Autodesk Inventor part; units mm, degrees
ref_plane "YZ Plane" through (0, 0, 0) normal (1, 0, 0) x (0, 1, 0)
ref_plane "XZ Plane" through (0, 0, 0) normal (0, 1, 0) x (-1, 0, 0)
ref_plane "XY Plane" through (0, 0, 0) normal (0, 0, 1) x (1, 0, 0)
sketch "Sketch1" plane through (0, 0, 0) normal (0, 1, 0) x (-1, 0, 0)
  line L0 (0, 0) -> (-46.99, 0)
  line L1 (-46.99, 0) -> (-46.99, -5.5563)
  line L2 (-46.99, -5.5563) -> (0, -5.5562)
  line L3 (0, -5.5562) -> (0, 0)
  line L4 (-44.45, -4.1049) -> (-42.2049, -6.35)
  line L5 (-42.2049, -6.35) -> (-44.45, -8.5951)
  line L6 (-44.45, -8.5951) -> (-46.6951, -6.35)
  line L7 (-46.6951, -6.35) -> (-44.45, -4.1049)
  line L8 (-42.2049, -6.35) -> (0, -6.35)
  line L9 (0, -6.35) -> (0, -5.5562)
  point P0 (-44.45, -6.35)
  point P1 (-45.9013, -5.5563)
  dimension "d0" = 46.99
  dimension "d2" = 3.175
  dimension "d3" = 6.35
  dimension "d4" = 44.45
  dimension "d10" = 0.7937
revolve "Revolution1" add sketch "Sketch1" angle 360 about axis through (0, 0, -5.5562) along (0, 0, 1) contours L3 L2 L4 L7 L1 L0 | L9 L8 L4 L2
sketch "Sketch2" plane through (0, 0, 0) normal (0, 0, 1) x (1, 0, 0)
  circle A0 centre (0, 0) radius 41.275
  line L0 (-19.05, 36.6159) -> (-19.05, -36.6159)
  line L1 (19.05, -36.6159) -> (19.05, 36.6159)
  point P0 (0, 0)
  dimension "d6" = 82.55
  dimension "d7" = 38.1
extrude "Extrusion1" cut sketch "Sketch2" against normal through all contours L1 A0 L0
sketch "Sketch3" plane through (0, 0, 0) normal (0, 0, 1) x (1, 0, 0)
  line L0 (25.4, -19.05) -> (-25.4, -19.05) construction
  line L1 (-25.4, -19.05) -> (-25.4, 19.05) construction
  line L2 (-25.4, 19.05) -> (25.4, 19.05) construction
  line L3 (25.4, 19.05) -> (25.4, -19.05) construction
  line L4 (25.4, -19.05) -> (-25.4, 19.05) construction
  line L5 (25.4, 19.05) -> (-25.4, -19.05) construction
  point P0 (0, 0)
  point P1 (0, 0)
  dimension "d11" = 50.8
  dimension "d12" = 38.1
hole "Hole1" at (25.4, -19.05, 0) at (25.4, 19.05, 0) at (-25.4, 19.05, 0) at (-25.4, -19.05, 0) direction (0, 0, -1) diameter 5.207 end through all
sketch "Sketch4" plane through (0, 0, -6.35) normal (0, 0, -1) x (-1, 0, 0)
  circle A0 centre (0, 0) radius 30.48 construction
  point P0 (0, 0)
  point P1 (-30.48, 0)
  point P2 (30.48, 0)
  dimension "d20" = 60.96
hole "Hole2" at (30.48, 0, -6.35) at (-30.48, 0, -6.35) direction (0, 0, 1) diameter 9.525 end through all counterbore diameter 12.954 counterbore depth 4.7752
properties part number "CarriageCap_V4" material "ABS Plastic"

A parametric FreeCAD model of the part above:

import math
import FreeCAD as App
import Part
import Sketcher

V = App.Vector
Q = App.Units.Quantity

doc = App.newDocument("Part")
params = doc.addObject("Spreadsheet::Sheet", "Params")
for row, (alias, value) in enumerate([
    ("sketch1_width", "1.85 in"),
    ("sketch1_height", "0.25 in"),
    ("sketch1_length", "0.125 in"),
    ("revolution_angle", "360 deg"),
    ("sketch2_radius", "1.625 in"),
    ("sketch3_diameter", "0.205 in"),
    ("hole_diameter", "0.205 in"),
    ("sketch4_diameter", "0.375 in"),
    ("hole2_diameter", "0.375 in"),
    ("hole2_cbore_diameter", "0.51 in"),
    ("hole2_cbore_depth", "0.188 in"),
], start=1):
    params.set(f"A{row}", alias)
    params.set(f"B{row}", "=" + value)
    params.setAlias(f"B{row}", alias)

body = doc.addObject("PartDesign::Body", "Body")

sketch1 = body.newObject("Sketcher::SketchObject", "Sketch")
sketch1.AttachmentSupport = (doc.getObject("XZ_Plane"), [""])
sketch1.MapMode = "FlatFace"
sketch1.addGeometry([
    Part.LineSegment(V(0, 0, 0), V(47, 0, 0)),
    Part.LineSegment(V(47, 0, 0), V(47, -5.6, 0)),
    Part.LineSegment(V(47, -5.6, 0), V(45.9, -5.6, 0)),
    Part.LineSegment(V(45.9, -5.6, 0), V(44.5, -4.1, 0)),
    Part.LineSegment(V(44.5, -4.1, 0), V(42.2, -6.3, 0)),
    Part.LineSegment(V(42.2, -6.3, 0), V(0, -6.3, 0)),
    Part.LineSegment(V(0, -6.3, 0), V(0, 0, 0)),
], False)
sketch1.addConstraint([
    Sketcher.Constraint("Coincident", 0, 2, 1, 1),
    Sketcher.Constraint("Coincident", 1, 2, 2, 1),
    Sketcher.Constraint("Coincident", 2, 2, 3, 1),
    Sketcher.Constraint("Coincident", 3, 2, 4, 1),
    Sketcher.Constraint("Coincident", 4, 2, 5, 1),
    Sketcher.Constraint("Coincident", 5, 2, 6, 1),
    Sketcher.Constraint("Coincident", 6, 2, 0, 1),
    Sketcher.Constraint("Horizontal", 0),
    Sketcher.Constraint("Vertical", 1),
    Sketcher.Constraint("Horizontal", 2),
    Sketcher.Constraint("Horizontal", 5),
    Sketcher.Constraint("Vertical", 6),
    Sketcher.Constraint("Coincident", 6, 2, -1, 1),
    Sketcher.Constraint("Perpendicular", 3, 4),
    Sketcher.Constraint("DistanceX", 0, 1, 0, 2, Q("1.85 in")),
    Sketcher.Constraint("DistanceY", 6, 1, 6, 2, Q("0.25 in")),
    Sketcher.Constraint("DistanceX", -1, 1, 3, 2, Q("1.75 in")),
    Sketcher.Constraint("Distance", 4, Q("0.125 in")),
    Sketcher.Constraint("Angle", 3, Q("135 deg")),
    Sketcher.Constraint("DistanceY", 4, 2, 2, 2, Q("0.031248 in")),
])
sketch1.setExpression("Constraints[14]", "Params.sketch1_width")
sketch1.setExpression("Constraints[15]", "Params.sketch1_height")
sketch1.setExpression("Constraints[17]", "Params.sketch1_length")
revolution = body.newObject("PartDesign::Revolution", "Revolution")
revolution.Profile = sketch1
revolution.ReferenceAxis = (sketch1, ["V_Axis"])
revolution.setExpression("Angle", "Params.revolution_angle")

sketch2 = body.newObject("Sketcher::SketchObject", "Sketch001")
sketch2.AttachmentSupport = (doc.getObject("XY_Plane"), [""])
sketch2.MapMode = "FlatFace"
sketch2.addGeometry([
    Part.LineSegment(V(19, -37, 0), V(19, 37, 0)),
    Part.ArcOfCircle(Part.Circle(V(0, 0, 0), V(0, 0, 1), 41), math.radians(63), math.radians(117)),
    Part.LineSegment(V(-19, 37, 0), V(-19, -37, 0)),
    Part.ArcOfCircle(Part.Circle(V(0, 0, 0), V(0, 0, 1), 41), math.radians(-117), math.radians(-63)),
], False)
sketch2.addConstraint([
    Sketcher.Constraint("Coincident", 0, 2, 1, 1),
    Sketcher.Constraint("Coincident", 1, 2, 2, 1),
    Sketcher.Constraint("Coincident", 2, 2, 3, 1),
    Sketcher.Constraint("Coincident", 3, 2, 0, 1),
    Sketcher.Constraint("Vertical", 0),
    Sketcher.Constraint("Vertical", 2),
    Sketcher.Constraint("Coincident", 1, 3, -1, 1),
    Sketcher.Constraint("Coincident", 3, 3, -1, 1),
    Sketcher.Constraint("Equal", 1, 3),
    Sketcher.Constraint("Horizontal", 0, 2, 1, 2),
    Sketcher.Constraint("Radius", 1, Q("1.625 in")),
    Sketcher.Constraint("DistanceX", 1, 2, 0, 2, Q("1.5 in")),
])
sketch2.setExpression("Constraints[10]", "Params.sketch2_radius")
pocket1 = body.newObject("PartDesign::Pocket", "Pocket")
pocket1.Profile = sketch2
pocket1.Type = "ThroughAll"

sketch3 = body.newObject("Sketcher::SketchObject", "Sketch002")
sketch3.AttachmentSupport = (doc.getObject("XY_Plane"), [""])
sketch3.MapMode = "FlatFace"
sketch3.addGeometry([
    Part.Circle(V(25.4, -19.1, 0), V(0, 0, 1), 2.6),
    Part.Circle(V(25.4, 19.1, 0), V(0, 0, 1), 2.6),
    Part.Circle(V(-25.4, 19.1, 0), V(0, 0, 1), 2.6),
    Part.Circle(V(-25.4, -19.1, 0), V(0, 0, 1), 2.6),
], False)
sketch3.addConstraint([
    Sketcher.Constraint("Equal", 0, 1),
    Sketcher.Constraint("Equal", 1, 2),
    Sketcher.Constraint("Equal", 2, 3),
    Sketcher.Constraint("Symmetric", 0, 3, 2, 3, -1, 1),
    Sketcher.Constraint("Symmetric", 1, 3, 3, 3, -1, 1),
    Sketcher.Constraint("Symmetric", 1, 3, 2, 3, -2),
    Sketcher.Constraint("Diameter", 0, Q("0.205 in")),
    Sketcher.Constraint("DistanceX", -1, 1, 0, 3, Q("1 in")),
    Sketcher.Constraint("DistanceY", 0, 3, 1, 3, Q("1.5 in")),
])
sketch3.setExpression("Constraints[6]", "Params.sketch3_diameter")
doc.recompute()
hole = body.newObject("PartDesign::Hole", "Hole")
hole.Profile = sketch3
hole.ThreadType = "None"
hole.setExpression("Diameter", "Params.hole_diameter")
hole.DepthType = "ThroughAll"

sketch4 = body.newObject("Sketcher::SketchObject", "Sketch003")
sketch4.AttachmentSupport = (doc.getObject("XY_Plane"), [""])
sketch4.MapMode = "FlatFace"
sketch4.AttachmentOffset = App.Placement(V(0, 0, -0.25 * 25.4), App.Rotation())
sketch4.addGeometry([
    Part.Circle(V(30.5, 0, 0), V(0, 0, 1), 4.8),
    Part.Circle(V(-30.5, 0, 0), V(0, 0, 1), 4.8),
], False)
sketch4.addConstraint([
    Sketcher.Constraint("Equal", 0, 1),
    Sketcher.Constraint("Symmetric", 0, 3, 1, 3, -1, 1),
    Sketcher.Constraint("PointOnObject", 0, 3, -1),
    Sketcher.Constraint("Diameter", 0, Q("0.375 in")),
    Sketcher.Constraint("DistanceX", -1, 1, 0, 3, Q("1.2 in")),
])
sketch4.setExpression("Constraints[3]", "Params.sketch4_diameter")
doc.recompute()
hole2 = body.newObject("PartDesign::Hole", "Hole001")
hole2.Profile = sketch4
hole2.ThreadType = "None"
hole2.setExpression("Diameter", "Params.hole2_diameter")
hole2.DepthType = "ThroughAll"
hole2.HoleCutType = "Counterbore"
hole2.setExpression("HoleCutDiameter", "Params.hole2_cbore_diameter")
hole2.setExpression("HoleCutDepth", "Params.hole2_cbore_depth")
hole2.Reversed = True

doc.recompute()
